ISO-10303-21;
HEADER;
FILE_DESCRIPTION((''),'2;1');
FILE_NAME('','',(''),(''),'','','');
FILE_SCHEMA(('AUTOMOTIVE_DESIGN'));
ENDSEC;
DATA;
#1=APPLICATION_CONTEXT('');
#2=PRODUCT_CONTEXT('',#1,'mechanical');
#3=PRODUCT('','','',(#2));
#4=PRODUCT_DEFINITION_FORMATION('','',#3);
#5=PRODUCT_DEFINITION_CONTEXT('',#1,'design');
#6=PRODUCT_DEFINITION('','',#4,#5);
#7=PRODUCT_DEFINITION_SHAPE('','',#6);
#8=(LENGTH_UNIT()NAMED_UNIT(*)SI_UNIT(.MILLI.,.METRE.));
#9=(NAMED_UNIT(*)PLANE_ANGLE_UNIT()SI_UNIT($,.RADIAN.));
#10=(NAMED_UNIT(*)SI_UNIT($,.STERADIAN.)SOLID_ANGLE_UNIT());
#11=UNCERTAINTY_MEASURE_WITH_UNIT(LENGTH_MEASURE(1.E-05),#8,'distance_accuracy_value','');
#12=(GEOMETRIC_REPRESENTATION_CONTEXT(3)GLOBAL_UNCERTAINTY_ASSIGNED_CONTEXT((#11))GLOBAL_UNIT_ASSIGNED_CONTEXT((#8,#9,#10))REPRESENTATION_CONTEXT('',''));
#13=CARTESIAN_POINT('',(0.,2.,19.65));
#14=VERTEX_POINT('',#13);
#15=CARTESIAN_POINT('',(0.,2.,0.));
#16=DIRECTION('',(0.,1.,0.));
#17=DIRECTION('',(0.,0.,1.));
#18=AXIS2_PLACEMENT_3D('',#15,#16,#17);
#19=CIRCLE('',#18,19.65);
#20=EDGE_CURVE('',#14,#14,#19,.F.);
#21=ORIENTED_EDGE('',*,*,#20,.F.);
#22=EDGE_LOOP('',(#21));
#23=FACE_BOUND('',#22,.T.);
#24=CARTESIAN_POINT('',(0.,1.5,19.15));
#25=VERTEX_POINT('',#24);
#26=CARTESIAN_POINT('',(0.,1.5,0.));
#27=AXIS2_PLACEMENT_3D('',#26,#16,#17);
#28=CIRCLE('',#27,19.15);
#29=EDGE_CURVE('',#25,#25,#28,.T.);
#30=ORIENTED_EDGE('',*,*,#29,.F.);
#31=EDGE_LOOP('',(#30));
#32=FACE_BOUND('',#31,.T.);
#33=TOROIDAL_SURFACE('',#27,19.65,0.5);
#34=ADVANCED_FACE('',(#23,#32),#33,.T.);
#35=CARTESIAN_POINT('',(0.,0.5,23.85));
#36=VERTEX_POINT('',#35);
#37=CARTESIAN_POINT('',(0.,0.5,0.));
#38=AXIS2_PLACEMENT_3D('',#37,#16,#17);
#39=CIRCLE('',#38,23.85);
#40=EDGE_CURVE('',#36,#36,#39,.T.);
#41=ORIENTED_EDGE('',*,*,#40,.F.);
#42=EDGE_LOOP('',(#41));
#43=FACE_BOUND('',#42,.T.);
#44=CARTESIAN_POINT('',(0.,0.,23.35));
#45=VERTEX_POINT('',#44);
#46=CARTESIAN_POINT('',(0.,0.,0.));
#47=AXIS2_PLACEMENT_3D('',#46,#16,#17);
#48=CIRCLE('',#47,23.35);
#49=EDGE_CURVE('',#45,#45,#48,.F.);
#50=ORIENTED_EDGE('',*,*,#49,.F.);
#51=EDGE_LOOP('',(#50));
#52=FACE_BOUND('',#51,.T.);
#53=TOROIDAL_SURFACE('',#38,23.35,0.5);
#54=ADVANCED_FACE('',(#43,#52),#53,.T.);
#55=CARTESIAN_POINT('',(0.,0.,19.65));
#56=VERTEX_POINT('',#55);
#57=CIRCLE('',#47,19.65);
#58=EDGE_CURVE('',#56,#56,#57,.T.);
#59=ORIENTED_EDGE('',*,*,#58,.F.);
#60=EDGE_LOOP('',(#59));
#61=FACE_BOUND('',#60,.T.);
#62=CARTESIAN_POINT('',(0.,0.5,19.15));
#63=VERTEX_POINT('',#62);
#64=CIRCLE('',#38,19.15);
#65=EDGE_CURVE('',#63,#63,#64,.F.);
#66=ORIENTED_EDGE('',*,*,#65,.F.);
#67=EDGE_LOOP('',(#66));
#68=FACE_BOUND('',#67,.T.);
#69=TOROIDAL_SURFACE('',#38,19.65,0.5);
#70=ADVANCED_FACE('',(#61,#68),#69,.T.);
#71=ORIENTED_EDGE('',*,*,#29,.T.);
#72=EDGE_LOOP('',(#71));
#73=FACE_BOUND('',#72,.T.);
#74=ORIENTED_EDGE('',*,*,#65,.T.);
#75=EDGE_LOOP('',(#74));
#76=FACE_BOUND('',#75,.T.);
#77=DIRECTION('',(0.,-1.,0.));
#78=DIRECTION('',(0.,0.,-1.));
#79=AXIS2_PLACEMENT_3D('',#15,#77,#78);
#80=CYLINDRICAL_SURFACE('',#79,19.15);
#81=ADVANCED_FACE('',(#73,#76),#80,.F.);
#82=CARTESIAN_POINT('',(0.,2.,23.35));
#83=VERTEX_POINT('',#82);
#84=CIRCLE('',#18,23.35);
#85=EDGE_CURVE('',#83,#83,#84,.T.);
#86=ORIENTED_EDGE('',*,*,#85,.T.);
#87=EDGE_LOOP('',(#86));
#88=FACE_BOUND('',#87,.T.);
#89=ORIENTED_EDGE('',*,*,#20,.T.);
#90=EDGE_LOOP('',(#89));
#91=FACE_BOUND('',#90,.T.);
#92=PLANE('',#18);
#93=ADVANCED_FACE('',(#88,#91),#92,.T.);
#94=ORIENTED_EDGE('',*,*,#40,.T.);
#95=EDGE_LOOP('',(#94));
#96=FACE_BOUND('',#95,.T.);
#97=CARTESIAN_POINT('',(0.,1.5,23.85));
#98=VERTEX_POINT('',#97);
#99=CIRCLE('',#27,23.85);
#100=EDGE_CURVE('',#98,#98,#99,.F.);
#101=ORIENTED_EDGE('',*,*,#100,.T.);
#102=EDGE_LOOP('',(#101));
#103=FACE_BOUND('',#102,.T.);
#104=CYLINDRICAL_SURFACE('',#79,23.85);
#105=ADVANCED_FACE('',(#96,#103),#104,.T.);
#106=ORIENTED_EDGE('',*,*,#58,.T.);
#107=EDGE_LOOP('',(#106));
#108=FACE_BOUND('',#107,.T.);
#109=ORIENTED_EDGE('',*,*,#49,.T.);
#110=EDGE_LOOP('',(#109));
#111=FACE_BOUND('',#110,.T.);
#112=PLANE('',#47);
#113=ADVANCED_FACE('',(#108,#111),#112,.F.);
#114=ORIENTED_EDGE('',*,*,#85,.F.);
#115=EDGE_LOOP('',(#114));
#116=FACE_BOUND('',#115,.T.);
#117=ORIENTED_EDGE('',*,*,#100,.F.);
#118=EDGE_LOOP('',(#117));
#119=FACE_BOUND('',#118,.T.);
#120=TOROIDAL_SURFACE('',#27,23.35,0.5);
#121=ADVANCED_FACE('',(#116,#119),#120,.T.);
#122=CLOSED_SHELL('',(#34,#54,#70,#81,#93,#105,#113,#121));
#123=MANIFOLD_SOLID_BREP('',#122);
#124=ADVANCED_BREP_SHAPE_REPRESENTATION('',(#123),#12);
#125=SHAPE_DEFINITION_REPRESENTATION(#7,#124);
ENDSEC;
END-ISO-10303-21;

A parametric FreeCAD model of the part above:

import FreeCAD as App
import Part
import Sketcher

V = App.Vector


def edges_at(feature, points):
    """Names of the edges that pass closest to the given points."""
    edges = feature.Shape.Edges
    near = lambda p: min(range(len(edges)), key=lambda i: edges[i].distToShape(Part.Vertex(*p))[0])
    return sorted({f"Edge{near(p) + 1}" for p in points})

doc = App.newDocument("Part")
params = doc.addObject("Spreadsheet::Sheet", "Params")
for row, (alias, value) in enumerate([
    ("sketch1_diameter", "47.7 mm"),
    ("sketch1_diameter2", "38.3 mm"),
    ("pad1_length", "2 mm"),
    ("fillet_radius", "0.5 mm"),
], start=1):
    params.set(f"A{row}", alias)
    params.set(f"B{row}", "=" + value)
    params.setAlias(f"B{row}", alias)

body = doc.addObject("PartDesign::Body", "Body")

sketch1 = body.newObject("Sketcher::SketchObject", "Sketch")
sketch1.AttachmentSupport = (doc.getObject("XZ_Plane"), [""])
sketch1.MapMode = "FlatFace"
sketch1.addGeometry([
    Part.Circle(V(0, 0, 0), V(0, 0, 1), 24),
    Part.Circle(V(0, 0, 0), V(0, 0, 1), 19),
], False)
sketch1.addConstraint([
    Sketcher.Constraint("Coincident", 0, 3, -1, 1),
    Sketcher.Constraint("Coincident", 1, 3, -1, 1),
    Sketcher.Constraint("Diameter", 0, 47.7),
    Sketcher.Constraint("Diameter", 1, 38.3),
])
sketch1.setExpression("Constraints[2]", "Params.sketch1_diameter")
sketch1.setExpression("Constraints[3]", "Params.sketch1_diameter2")
pad1 = body.newObject("PartDesign::Pad", "Pad")
pad1.Profile = sketch1
pad1.setExpression("Length", "Params.pad1_length")
pad1.Reversed = True
doc.recompute()

fillet = body.newObject("PartDesign::Fillet", "Fillet")
fillet.Base = (pad1, edges_at(pad1, [
    (0, 0, -23.85),
    (0, 2, -23.85),
    (0, 0, -19.15),
    (0, 2, -19.15),
]))
fillet.setExpression("Radius", "Params.fillet_radius")

doc.recompute()
